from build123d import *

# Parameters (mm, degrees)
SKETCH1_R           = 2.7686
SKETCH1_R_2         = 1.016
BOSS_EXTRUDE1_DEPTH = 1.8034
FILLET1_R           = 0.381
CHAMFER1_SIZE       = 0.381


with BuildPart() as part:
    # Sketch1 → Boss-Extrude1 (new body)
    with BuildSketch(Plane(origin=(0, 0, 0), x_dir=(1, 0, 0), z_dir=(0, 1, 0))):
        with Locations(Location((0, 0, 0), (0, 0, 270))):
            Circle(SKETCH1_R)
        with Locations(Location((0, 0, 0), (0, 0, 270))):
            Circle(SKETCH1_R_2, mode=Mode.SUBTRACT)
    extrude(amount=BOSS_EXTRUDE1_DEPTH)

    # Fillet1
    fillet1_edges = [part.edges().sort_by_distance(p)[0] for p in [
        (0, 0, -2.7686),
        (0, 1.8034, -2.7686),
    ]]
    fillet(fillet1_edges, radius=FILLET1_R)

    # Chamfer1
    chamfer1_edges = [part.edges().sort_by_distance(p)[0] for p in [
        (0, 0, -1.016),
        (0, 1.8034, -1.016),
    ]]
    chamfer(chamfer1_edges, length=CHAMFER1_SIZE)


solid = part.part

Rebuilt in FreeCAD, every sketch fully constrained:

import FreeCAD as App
import Part
import Sketcher

V = App.Vector
Q = App.Units.Quantity


def edges_at(feature, points):
    """Names of the edges that pass closest to the given points."""
    edges = feature.Shape.Edges
    near = lambda p: min(range(len(edges)), key=lambda i: edges[i].distToShape(Part.Vertex(*p))[0])
    return sorted({f"Edge{near(p) + 1}" for p in points})

doc = App.newDocument("Part")
params = doc.addObject("Spreadsheet::Sheet", "Params")
for row, (alias, value) in enumerate([
    ("sketch1_diameter", "0.08 in"),
    ("sketch1_diameter2", "0.218 in"),
    ("pad1_length", "0.071 in"),
    ("fillet_radius", "0.015 in"),
    ("chamfer_size", "0.015 in"),
], start=1):
    params.set(f"A{row}", alias)
    params.set(f"B{row}", "=" + value)
    params.setAlias(f"B{row}", alias)

body = doc.addObject("PartDesign::Body", "Body")

sketch1 = body.newObject("Sketcher::SketchObject", "Sketch")
sketch1.AttachmentSupport = (doc.getObject("XZ_Plane"), [""])
sketch1.MapMode = "FlatFace"
sketch1.addGeometry([
    Part.Circle(V(0, 0, 0), V(0, 0, 1), 2.7686),
    Part.Circle(V(0, 0, 0), V(0, 0, 1), 1.016),
], False)
sketch1.addConstraint([
    Sketcher.Constraint("Coincident", 0, 3, -1, 1),
    Sketcher.Constraint("Coincident", 1, 3, -1, 1),
    Sketcher.Constraint("Diameter", 1, Q("0.08 in")),
    Sketcher.Constraint("Diameter", 0, Q("0.218 in")),
])
sketch1.setExpression("Constraints[2]", "Params.sketch1_diameter")
sketch1.setExpression("Constraints[3]", "Params.sketch1_diameter2")
pad1 = body.newObject("PartDesign::Pad", "Pad")
pad1.Profile = sketch1
pad1.setExpression("Length", "Params.pad1_length")
pad1.Reversed = True
doc.recompute()

fillet = body.newObject("PartDesign::Fillet", "Fillet")
fillet.Base = (pad1, edges_at(pad1, [(0, 0, -2.769), (0, 1.803, -2.769)]))
fillet.setExpression("Radius", "Params.fillet_radius")
doc.recompute()

chamfer = body.newObject("PartDesign::Chamfer", "Chamfer")
chamfer.Base = (fillet, edges_at(fillet, [(0, 0, -1.016), (0, 1.803, -1.016)]))
chamfer.setExpression("Size", "Params.chamfer_size")

doc.recompute()
